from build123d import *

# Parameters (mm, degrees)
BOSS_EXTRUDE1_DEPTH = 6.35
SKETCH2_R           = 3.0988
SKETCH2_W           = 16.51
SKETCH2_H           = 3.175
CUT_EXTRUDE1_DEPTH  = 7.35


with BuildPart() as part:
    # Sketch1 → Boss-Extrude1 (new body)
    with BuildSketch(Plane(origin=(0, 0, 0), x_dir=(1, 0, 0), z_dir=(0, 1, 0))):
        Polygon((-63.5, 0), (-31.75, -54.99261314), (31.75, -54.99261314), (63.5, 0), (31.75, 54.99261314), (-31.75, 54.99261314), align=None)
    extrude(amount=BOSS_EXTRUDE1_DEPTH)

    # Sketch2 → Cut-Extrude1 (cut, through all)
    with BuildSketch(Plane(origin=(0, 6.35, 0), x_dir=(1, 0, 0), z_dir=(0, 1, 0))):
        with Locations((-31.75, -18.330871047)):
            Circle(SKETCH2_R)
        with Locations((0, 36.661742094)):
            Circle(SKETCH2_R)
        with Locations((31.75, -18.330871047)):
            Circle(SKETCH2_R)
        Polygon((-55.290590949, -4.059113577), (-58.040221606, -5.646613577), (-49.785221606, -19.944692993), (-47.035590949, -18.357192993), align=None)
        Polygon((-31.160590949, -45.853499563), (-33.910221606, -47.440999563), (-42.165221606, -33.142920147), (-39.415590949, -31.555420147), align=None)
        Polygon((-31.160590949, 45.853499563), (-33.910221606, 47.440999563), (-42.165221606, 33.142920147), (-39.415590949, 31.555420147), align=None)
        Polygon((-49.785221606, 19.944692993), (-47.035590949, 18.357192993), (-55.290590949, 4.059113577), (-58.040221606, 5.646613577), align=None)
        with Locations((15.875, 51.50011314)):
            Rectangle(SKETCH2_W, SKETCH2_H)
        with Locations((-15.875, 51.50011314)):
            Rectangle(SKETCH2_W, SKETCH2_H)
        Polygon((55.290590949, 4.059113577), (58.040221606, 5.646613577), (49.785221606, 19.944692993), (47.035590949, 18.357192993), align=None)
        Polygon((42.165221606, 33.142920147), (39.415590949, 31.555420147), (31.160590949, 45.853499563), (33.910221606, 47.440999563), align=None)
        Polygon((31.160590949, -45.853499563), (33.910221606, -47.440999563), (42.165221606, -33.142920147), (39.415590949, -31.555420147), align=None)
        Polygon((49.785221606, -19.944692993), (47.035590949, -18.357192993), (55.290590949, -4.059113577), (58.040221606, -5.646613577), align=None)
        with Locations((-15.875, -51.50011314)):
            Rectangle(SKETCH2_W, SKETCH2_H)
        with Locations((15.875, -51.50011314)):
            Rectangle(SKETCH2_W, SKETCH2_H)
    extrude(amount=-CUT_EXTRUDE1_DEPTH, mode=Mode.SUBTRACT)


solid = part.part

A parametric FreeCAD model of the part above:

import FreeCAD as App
import Part
import Sketcher
from FreeCAD import Vector
Q = App.Units.Quantity

doc = App.newDocument("Part")
body = doc.addObject("PartDesign::Body", "Body")

# Sketch on XZ plane
sketch1 = doc.addObject("Sketcher::SketchObject", "Sketch")
body.addObject(sketch1)
sketch1.AttachmentSupport = (doc.XZ_Plane, [""])
sketch1.MapMode = "FlatFace"
sketch1.addGeometry([
    Part.LineSegment(Vector(-64, 0, 0), Vector(-32, 55, 0)),  # 0
    Part.LineSegment(Vector(-32, 55, 0), Vector(32, 55, 0)),  # 1
    Part.LineSegment(Vector(32, 55, 0), Vector(64, 0, 0)),  # 2
    Part.LineSegment(Vector(64, 0, 0), Vector(32, -55, 0)),  # 3
    Part.LineSegment(Vector(32, -55, 0), Vector(-32, -55, 0)),  # 4
    Part.LineSegment(Vector(-32, -55, 0), Vector(-64, 0, 0)),  # 5
], False)
sketch1.addConstraint([
    Sketcher.Constraint("Coincident", 0, 2, 1, 1),
    Sketcher.Constraint("Coincident", 1, 2, 2, 1),
    Sketcher.Constraint("Coincident", 2, 2, 3, 1),
    Sketcher.Constraint("Coincident", 3, 2, 4, 1),
    Sketcher.Constraint("Coincident", 4, 2, 5, 1),
    Sketcher.Constraint("Coincident", 5, 2, 0, 1),
    Sketcher.Constraint("Horizontal", 1),
    Sketcher.Constraint("Horizontal", 4),
    Sketcher.Constraint("Symmetric", 0, 2, 3, 2, -1, 1),
    Sketcher.Constraint("Symmetric", 2, 2, 5, 2, -1, 1),
    Sketcher.Constraint("PointOnObject", 2, 2, -1),
    Sketcher.Constraint("Parallel", 2, 5),
    Sketcher.Constraint("Vertical", 1, 2, 3, 2),
    Sketcher.Constraint("DistanceX", 1, 1, 1, 2, Q("2.5 in")),
    Sketcher.Constraint("Angle", 0, Q("60 deg")),
    Sketcher.Constraint("DistanceX", 5, 2, 2, 2, Q("5 in")),
])
pad1 = doc.addObject("PartDesign::Pad", "Pad")
body.addObject(pad1)
pad1.Profile = sketch1
pad1.Length = Q("0.25 in")
pad1.Reversed = True

# Sketch on XZ plane
sketch2 = doc.addObject("Sketcher::SketchObject", "Sketch001")
body.addObject(sketch2)
sketch2.AttachmentSupport = (doc.XZ_Plane, [""])
sketch2.MapMode = "FlatFace"
sketch2.AttachmentOffset = App.Placement(Vector(0, 0, -0.25 * 25.4), App.Rotation())
sketch2.addGeometry([
    Part.Circle(Vector(-31.8, 18.3, 0), Vector(0, 0, 1), 3.1),  # 0
    Part.Circle(Vector(0, -36.7, 0), Vector(0, 0, 1), 3.1),  # 1
    Part.Circle(Vector(31.8, 18.3, 0), Vector(0, 0, 1), 3.1),  # 2
    Part.LineSegment(Vector(-55.3, 4.1, 0), Vector(-58, 5.6, 0)),  # 3
    Part.LineSegment(Vector(-58, 5.6, 0), Vector(-49.8, 19.9, 0)),  # 4
    Part.LineSegment(Vector(-49.8, 19.9, 0), Vector(-47, 18.4, 0)),  # 5
    Part.LineSegment(Vector(-47, 18.4, 0), Vector(-55.3, 4.1, 0)),  # 6
    Part.LineSegment(Vector(-33.9, 47.4, 0), Vector(-31.2, 45.9, 0)),  # 7
    Part.LineSegment(Vector(-31.2, 45.9, 0), Vector(-39.4, 31.6, 0)),  # 8
    Part.LineSegment(Vector(-39.4, 31.6, 0), Vector(-42.2, 33.1, 0)),  # 9
    Part.LineSegment(Vector(-42.2, 33.1, 0), Vector(-33.9, 47.4, 0)),  # 10
    Part.LineSegment(Vector(-31.2, -45.9, 0), Vector(-33.9, -47.4, 0)),  # 11
    Part.LineSegment(Vector(-33.9, -47.4, 0), Vector(-42.2, -33.1, 0)),  # 12
    Part.LineSegment(Vector(-42.2, -33.1, 0), Vector(-39.4, -31.6, 0)),  # 13
    Part.LineSegment(Vector(-39.4, -31.6, 0), Vector(-31.2, -45.9, 0)),  # 14
    Part.LineSegment(Vector(-47, -18.4, 0), Vector(-49.8, -19.9, 0)),  # 15
    Part.LineSegment(Vector(-49.8, -19.9, 0), Vector(-58, -5.6, 0)),  # 16
    Part.LineSegment(Vector(-58, -5.6, 0), Vector(-55.3, -4.1, 0)),  # 17
    Part.LineSegment(Vector(-55.3, -4.1, 0), Vector(-47, -18.4, 0)),  # 18
    Part.LineSegment(Vector(7.6, -53.1, 0), Vector(7.6, -49.9, 0)),  # 19
    Part.LineSegment(Vector(7.6, -49.9, 0), Vector(24.1, -49.9, 0)),  # 20
    Part.LineSegment(Vector(24.1, -49.9, 0), Vector(24.1, -53.1, 0)),  # 21
    Part.LineSegment(Vector(24.1, -53.1, 0), Vector(7.6, -53.1, 0)),  # 22
    Part.LineSegment(Vector(-24.1, -53.1, 0), Vector(-24.1, -49.9, 0)),  # 23
    Part.LineSegment(Vector(-24.1, -49.9, 0), Vector(-7.6, -49.9, 0)),  # 24
    Part.LineSegment(Vector(-7.6, -49.9, 0), Vector(-7.6, -53.1, 0)),  # 25
    Part.LineSegment(Vector(-7.6, -53.1, 0), Vector(-24.1, -53.1, 0)),  # 26
    Part.LineSegment(Vector(55.3, -4.1, 0), Vector(58, -5.6, 0)),  # 27
    Part.LineSegment(Vector(58, -5.6, 0), Vector(49.8, -19.9, 0)),  # 28
    Part.LineSegment(Vector(49.8, -19.9, 0), Vector(47, -18.4, 0)),  # 29
    Part.LineSegment(Vector(47, -18.4, 0), Vector(55.3, -4.1, 0)),  # 30
    Part.LineSegment(Vector(39.4, -31.6, 0), Vector(42.2, -33.1, 0)),  # 31
    Part.LineSegment(Vector(42.2, -33.1, 0), Vector(33.9, -47.4, 0)),  # 32
    Part.LineSegment(Vector(33.9, -47.4, 0), Vector(31.2, -45.9, 0)),  # 33
    Part.LineSegment(Vector(31.2, -45.9, 0), Vector(39.4, -31.6, 0)),  # 34
    Part.LineSegment(Vector(31.2, 45.9, 0), Vector(33.9, 47.4, 0)),  # 35
    Part.LineSegment(Vector(33.9, 47.4, 0), Vector(42.2, 33.1, 0)),  # 36
    Part.LineSegment(Vector(42.2, 33.1, 0), Vector(39.4, 31.6, 0)),  # 37
    Part.LineSegment(Vector(39.4, 31.6, 0), Vector(31.2, 45.9, 0)),  # 38
    Part.LineSegment(Vector(47, 18.4, 0), Vector(49.8, 19.9, 0)),  # 39
    Part.LineSegment(Vector(49.8, 19.9, 0), Vector(58, 5.6, 0)),  # 40
    Part.LineSegment(Vector(58, 5.6, 0), Vector(55.3, 4.1, 0)),  # 41
    Part.LineSegment(Vector(55.3, 4.1, 0), Vector(47, 18.4, 0)),  # 42
    Part.LineSegment(Vector(-24.1, 49.9, 0), Vector(-24.1, 53.1, 0)),  # 43
    Part.LineSegment(Vector(-24.1, 53.1, 0), Vector(-7.6, 53.1, 0)),  # 44
    Part.LineSegment(Vector(-7.6, 53.1, 0), Vector(-7.6, 49.9, 0)),  # 45
    Part.LineSegment(Vector(-7.6, 49.9, 0), Vector(-24.1, 49.9, 0)),  # 46
    Part.LineSegment(Vector(7.6, 49.9, 0), Vector(7.6, 53.1, 0)),  # 47
    Part.LineSegment(Vector(7.6, 53.1, 0), Vector(24.1, 53.1, 0)),  # 48
    Part.LineSegment(Vector(24.1, 53.1, 0), Vector(24.1, 49.9, 0)),  # 49
    Part.LineSegment(Vector(24.1, 49.9, 0), Vector(7.6, 49.9, 0)),  # 50
], False)
sketch2.addConstraint([
    Sketcher.Constraint("Coincident", 3, 2, 4, 1),
    Sketcher.Constraint("Coincident", 4, 2, 5, 1),
    Sketcher.Constraint("Coincident", 5, 2, 6, 1),
    Sketcher.Constraint("Coincident", 6, 2, 3, 1),
    Sketcher.Constraint("Coincident", 7, 2, 8, 1),
    Sketcher.Constraint("Coincident", 8, 2, 9, 1),
    Sketcher.Constraint("Coincident", 9, 2, 10, 1),
    Sketcher.Constraint("Coincident", 10, 2, 7, 1),
    Sketcher.Constraint("Coincident", 11, 2, 12, 1),
    Sketcher.Constraint("Coincident", 12, 2, 13, 1),
    Sketcher.Constraint("Coincident", 13, 2, 14, 1),
    Sketcher.Constraint("Coincident", 14, 2, 11, 1),
    Sketcher.Constraint("Coincident", 15, 2, 16, 1),
    Sketcher.Constraint("Coincident", 16, 2, 17, 1),
    Sketcher.Constraint("Coincident", 17, 2, 18, 1),
    Sketcher.Constraint("Coincident", 18, 2, 15, 1),
    Sketcher.Constraint("Coincident", 19, 2, 20, 1),
    Sketcher.Constraint("Coincident", 20, 2, 21, 1),
    Sketcher.Constraint("Coincident", 21, 2, 22, 1),
    Sketcher.Constraint("Coincident", 22, 2, 19, 1),
    Sketcher.Constraint("Coincident", 23, 2, 24, 1),
    Sketcher.Constraint("Coincident", 24, 2, 25, 1),
    Sketcher.Constraint("Coincident", 25, 2, 26, 1),
    Sketcher.Constraint("Coincident", 26, 2, 23, 1),
    Sketcher.Constraint("Coincident", 27, 2, 28, 1),
    Sketcher.Constraint("Coincident", 28, 2, 29, 1),
    Sketcher.Constraint("Coincident", 29, 2, 30, 1),
    Sketcher.Constraint("Coincident", 30, 2, 27, 1),
    Sketcher.Constraint("Coincident", 31, 2, 32, 1),
    Sketcher.Constraint("Coincident", 32, 2, 33, 1),
    Sketcher.Constraint("Coincident", 33, 2, 34, 1),
    Sketcher.Constraint("Coincident", 34, 2, 31, 1),
    Sketcher.Constraint("Coincident", 35, 2, 36, 1),
    Sketcher.Constraint("Coincident", 36, 2, 37, 1),
    Sketcher.Constraint("Coincident", 37, 2, 38, 1),
    Sketcher.Constraint("Coincident", 38, 2, 35, 1),
    Sketcher.Constraint("Coincident", 39, 2, 40, 1),
    Sketcher.Constraint("Coincident", 40, 2, 41, 1),
    Sketcher.Constraint("Coincident", 41, 2, 42, 1),
    Sketcher.Constraint("Coincident", 42, 2, 39, 1),
    Sketcher.Constraint("Coincident", 43, 2, 44, 1),
    Sketcher.Constraint("Coincident", 44, 2, 45, 1),
    Sketcher.Constraint("Coincident", 45, 2, 46, 1),
    Sketcher.Constraint("Coincident", 46, 2, 43, 1),
    Sketcher.Constraint("Coincident", 47, 2, 48, 1),
    Sketcher.Constraint("Coincident", 48, 2, 49, 1),
    Sketcher.Constraint("Coincident", 49, 2, 50, 1),
    Sketcher.Constraint("Coincident", 50, 2, 47, 1),
    Sketcher.Constraint("Vertical", 19),
    Sketcher.Constraint("Horizontal", 20),
    Sketcher.Constraint("Vertical", 21),
    Sketcher.Constraint("Horizontal", 22),
    Sketcher.Constraint("Vertical", 23),
    Sketcher.Constraint("Horizontal", 24),
    Sketcher.Constraint("Vertical", 25),
    Sketcher.Constraint("Horizontal", 26),
    Sketcher.Constraint("Vertical", 43),
    Sketcher.Constraint("Horizontal", 44),
    Sketcher.Constraint("Vertical", 45),
    Sketcher.Constraint("Horizontal", 46),
    Sketcher.Constraint("Vertical", 47),
    Sketcher.Constraint("Horizontal", 48),
    Sketcher.Constraint("Vertical", 49),
    Sketcher.Constraint("Horizontal", 50),
    Sketcher.Constraint("Equal", 0, 1),
    Sketcher.Constraint("Equal", 1, 2),
    Sketcher.Constraint("Symmetric", 3, 2, 27, 2, -1, 1),
    Sketcher.Constraint("Symmetric", 4, 2, 28, 2, -1, 1),
    Sketcher.Constraint("Symmetric", 5, 2, 29, 2, -1, 1),
    Sketcher.Constraint("Symmetric", 6, 2, 30, 2, -1, 1),
    Sketcher.Constraint("Symmetric", 9, 2, 31, 2, -1, 1),
    Sketcher.Constraint("Symmetric", 10, 2, 32, 2, -1, 1),
    Sketcher.Constraint("Symmetric", 7, 2, 33, 2, -1, 1),
    Sketcher.Constraint("Symmetric", 8, 2, 34, 2, -1, 1),
    Sketcher.Constraint("Symmetric", 11, 2, 35, 2, -1, 1),
    Sketcher.Constraint("Symmetric", 12, 2, 36, 2, -1, 1),
    Sketcher.Constraint("Symmetric", 13, 2, 37, 2, -1, 1),
    Sketcher.Constraint("Symmetric", 14, 2, 38, 2, -1, 1),
    Sketcher.Constraint("Symmetric", 15, 2, 39, 2, -1, 1),
    Sketcher.Constraint("Symmetric", 16, 2, 40, 2, -1, 1),
    Sketcher.Constraint("Symmetric", 17, 2, 41, 2, -1, 1),
    Sketcher.Constraint("Symmetric", 18, 2, 42, 2, -1, 1),
    Sketcher.Constraint("Symmetric", 21, 2, 43, 2, -1, 1),
    Sketcher.Constraint("Symmetric", 19, 2, 45, 2, -1, 1),
    Sketcher.Constraint("Symmetric", 25, 2, 47, 2, -1, 1),
    Sketcher.Constraint("Symmetric", 23, 2, 49, 2, -1, 1),
    Sketcher.Constraint("Symmetric", 0, 3, 2, 3, -2),
    Sketcher.Constraint("Symmetric", 20, 2, 23, 2, -2),
    Sketcher.Constraint("Symmetric", 22, 2, 25, 2, -2),
    Sketcher.Constraint("Symmetric", 16, 2, 27, 2, -2),
    Sketcher.Constraint("Symmetric", 15, 2, 28, 2, -2),
    Sketcher.Constraint("Symmetric", 18, 2, 29, 2, -2),
    Sketcher.Constraint("Symmetric", 17, 2, 30, 2, -2),
    Sketcher.Constraint("Symmetric", 12, 2, 31, 2, -2),
    Sketcher.Constraint("Symmetric", 11, 2, 32, 2, -2),
    Sketcher.Constraint("Symmetric", 14, 2, 33, 2, -2),
    Sketcher.Constraint("Symmetric", 13, 2, 34, 2, -2),
    Sketcher.Constraint("PointOnObject", 1, 3, -2),
    Sketcher.Constraint("Perpendicular", 3, 4),
    Sketcher.Constraint("Perpendicular", 4, 5),
    Sketcher.Constraint("Perpendicular", 5, 6),
    Sketcher.Constraint("Perpendicular", 6, 7),
    Sketcher.Constraint("Perpendicular", 7, 8),
    Sketcher.Constraint("Perpendicular", 8, 9),
    Sketcher.Constraint("Perpendicular", 9, 10),
    Sketcher.Constraint("Equal", 5, 7),
    Sketcher.Constraint("Equal", 6, 8),
    Sketcher.Constraint("Diameter", 0, Q("0.244 in")),
    Sketcher.Constraint("Angle", 3, Q("150 deg")),
    Sketcher.Constraint("DistanceX", 20, 1, 20, 2, Q("0.65 in")),
    Sketcher.Constraint("DistanceX", -1, 1, 19, 2, Q("0.3 in")),
    Sketcher.Constraint("DistanceX", 0, 3, 2, 3, Q("2.5 in")),
    Sketcher.Constraint("DistanceX", 5, 2, 8, 2, Q("0.3 in")),
    Sketcher.Constraint("Distance", 4, Q("0.65 in")),
    Sketcher.Constraint("DistanceY", 19, 1, 19, 2, Q("0.125 in")),
    Sketcher.Constraint("Distance", 3, Q("0.125 in")),
    Sketcher.Constraint("DistanceY", 1, 3, 4, 2, Q("2.2285998 in")),
    Sketcher.Constraint("DistanceY", -1, 1, 7, 2, 45.8535),
    Sketcher.Constraint("DistanceY", 20, 2, 27, 2, 44.266),
    Sketcher.Constraint("DistanceY", -1, 1, 0, 3, 18.330871),
    Sketcher.Constraint("DistanceX", 3, 2, -1, 1, 58.040222),
    Sketcher.Constraint("DistanceY", 0, 3, 4, 2, 1.613822),
])
pocket1 = doc.addObject("PartDesign::Pocket", "Pocket")
body.addObject(pocket1)
pocket1.Profile = sketch2
pocket1.Type = "ThroughAll"
pocket1.Reversed = True

doc.recompute()
